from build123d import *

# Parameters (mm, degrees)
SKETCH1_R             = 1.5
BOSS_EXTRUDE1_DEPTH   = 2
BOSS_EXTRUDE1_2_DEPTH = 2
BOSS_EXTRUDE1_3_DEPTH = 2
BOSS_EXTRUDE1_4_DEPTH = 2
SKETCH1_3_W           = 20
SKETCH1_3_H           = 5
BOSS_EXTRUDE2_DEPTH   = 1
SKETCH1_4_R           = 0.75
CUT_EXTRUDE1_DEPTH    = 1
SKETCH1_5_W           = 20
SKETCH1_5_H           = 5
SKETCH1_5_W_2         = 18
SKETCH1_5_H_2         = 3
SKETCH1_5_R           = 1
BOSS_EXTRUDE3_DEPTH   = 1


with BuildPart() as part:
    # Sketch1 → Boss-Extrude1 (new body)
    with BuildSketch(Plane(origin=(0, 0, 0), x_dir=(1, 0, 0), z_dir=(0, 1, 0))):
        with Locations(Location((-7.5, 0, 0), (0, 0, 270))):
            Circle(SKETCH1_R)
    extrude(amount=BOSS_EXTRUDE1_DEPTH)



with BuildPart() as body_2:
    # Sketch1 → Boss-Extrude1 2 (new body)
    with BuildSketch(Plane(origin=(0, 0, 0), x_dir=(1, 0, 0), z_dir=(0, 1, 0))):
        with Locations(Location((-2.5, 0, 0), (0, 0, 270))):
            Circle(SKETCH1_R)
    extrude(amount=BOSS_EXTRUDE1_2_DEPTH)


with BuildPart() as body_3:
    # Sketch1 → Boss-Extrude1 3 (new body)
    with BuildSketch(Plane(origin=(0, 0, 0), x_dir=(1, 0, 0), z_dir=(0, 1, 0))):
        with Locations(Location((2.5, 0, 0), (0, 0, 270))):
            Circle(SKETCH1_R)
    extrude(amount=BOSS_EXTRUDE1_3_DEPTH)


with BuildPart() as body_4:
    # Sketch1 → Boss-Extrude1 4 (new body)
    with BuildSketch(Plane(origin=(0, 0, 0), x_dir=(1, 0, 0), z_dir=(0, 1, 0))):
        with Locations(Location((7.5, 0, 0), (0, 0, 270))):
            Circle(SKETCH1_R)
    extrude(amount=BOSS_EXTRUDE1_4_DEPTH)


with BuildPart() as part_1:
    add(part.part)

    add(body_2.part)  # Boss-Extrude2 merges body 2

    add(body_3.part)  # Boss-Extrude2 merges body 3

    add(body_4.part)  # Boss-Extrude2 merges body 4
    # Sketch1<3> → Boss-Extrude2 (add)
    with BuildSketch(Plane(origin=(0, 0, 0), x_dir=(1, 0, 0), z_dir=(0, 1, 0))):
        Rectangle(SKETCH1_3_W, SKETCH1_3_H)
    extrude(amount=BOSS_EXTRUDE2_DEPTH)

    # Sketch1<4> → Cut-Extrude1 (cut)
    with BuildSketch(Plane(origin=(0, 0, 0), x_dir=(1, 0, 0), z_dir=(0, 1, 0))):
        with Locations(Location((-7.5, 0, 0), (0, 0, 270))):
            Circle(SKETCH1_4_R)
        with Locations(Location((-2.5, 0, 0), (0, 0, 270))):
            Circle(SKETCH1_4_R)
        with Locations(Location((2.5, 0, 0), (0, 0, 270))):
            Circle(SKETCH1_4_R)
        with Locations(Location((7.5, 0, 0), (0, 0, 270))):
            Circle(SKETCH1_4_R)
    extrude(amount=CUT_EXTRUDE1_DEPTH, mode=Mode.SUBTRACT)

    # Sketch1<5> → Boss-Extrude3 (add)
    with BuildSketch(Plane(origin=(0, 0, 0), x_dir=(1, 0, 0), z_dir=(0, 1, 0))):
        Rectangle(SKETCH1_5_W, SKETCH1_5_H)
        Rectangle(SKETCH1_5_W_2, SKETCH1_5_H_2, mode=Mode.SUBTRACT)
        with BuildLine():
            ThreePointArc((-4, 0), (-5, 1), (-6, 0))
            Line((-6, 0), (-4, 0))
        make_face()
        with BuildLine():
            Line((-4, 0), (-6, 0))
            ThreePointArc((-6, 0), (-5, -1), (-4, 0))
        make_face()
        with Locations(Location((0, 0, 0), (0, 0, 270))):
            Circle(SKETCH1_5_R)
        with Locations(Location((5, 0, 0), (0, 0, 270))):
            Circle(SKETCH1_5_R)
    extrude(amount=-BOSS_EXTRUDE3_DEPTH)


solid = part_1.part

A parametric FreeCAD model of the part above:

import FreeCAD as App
import Part
import Sketcher
from FreeCAD import Vector

doc = App.newDocument("Part")
body = doc.addObject("PartDesign::Body", "Body")

sketch1 = body.newObject("Sketcher::SketchObject", "Sketch")
sketch1.AttachmentSupport = (doc.getObject("XZ_Plane"), [""])
sketch1.MapMode = "FlatFace"
sketch1.addGeometry(Part.Circle(Vector(-7.5, 0, 0), Vector(0, 0, 1), 1.5), False)
sketch1.addConstraint(Sketcher.Constraint("PointOnObject", 0, 3, -1))
sketch1.addConstraint(Sketcher.Constraint("Diameter", 0, 3.0))
sketch1.addConstraint(Sketcher.Constraint("DistanceX", 0, 3, -1, 1, 7.5))
pad1 = body.newObject("PartDesign::Pad", "Pad")
pad1.Profile = sketch1
pad1.Length = 2
pad1.Reversed = True
body2 = doc.addObject("PartDesign::Body", "Body001")

sketch2 = body2.newObject("Sketcher::SketchObject", "Sketch001")
sketch2.AttachmentSupport = (doc.getObject("XZ_Plane001"), [""])
sketch2.MapMode = "FlatFace"
sketch2.addGeometry(Part.Circle(Vector(-2.5, 0, 0), Vector(0, 0, 1), 1.5), False)
sketch2.addConstraint(Sketcher.Constraint("PointOnObject", 0, 3, -1))
sketch2.addConstraint(Sketcher.Constraint("Diameter", 0, 3.0))
sketch2.addConstraint(Sketcher.Constraint("DistanceX", 0, 3, -1, 1, 2.5))
pad2 = body2.newObject("PartDesign::Pad", "Pad001")
pad2.Profile = sketch2
pad2.Length = 2
pad2.Reversed = True
body3 = doc.addObject("PartDesign::Body", "Body002")

sketch3 = body3.newObject("Sketcher::SketchObject", "Sketch002")
sketch3.AttachmentSupport = (doc.getObject("XZ_Plane002"), [""])
sketch3.MapMode = "FlatFace"
sketch3.addGeometry(Part.Circle(Vector(2.5, 0, 0), Vector(0, 0, 1), 1.5), False)
sketch3.addConstraint(Sketcher.Constraint("PointOnObject", 0, 3, -1))
sketch3.addConstraint(Sketcher.Constraint("Diameter", 0, 3.0))
sketch3.addConstraint(Sketcher.Constraint("DistanceX", -1, 1, 0, 3, 2.5))
pad3 = body3.newObject("PartDesign::Pad", "Pad002")
pad3.Profile = sketch3
pad3.Length = 2
pad3.Reversed = True
body4 = doc.addObject("PartDesign::Body", "Body003")

sketch4 = body4.newObject("Sketcher::SketchObject", "Sketch003")
sketch4.AttachmentSupport = (doc.getObject("XZ_Plane003"), [""])
sketch4.MapMode = "FlatFace"
sketch4.addGeometry(Part.Circle(Vector(7.5, 0, 0), Vector(0, 0, 1), 1.5), False)
sketch4.addConstraint(Sketcher.Constraint("PointOnObject", 0, 3, -1))
sketch4.addConstraint(Sketcher.Constraint("Diameter", 0, 3.0))
sketch4.addConstraint(Sketcher.Constraint("DistanceX", -1, 1, 0, 3, 7.5))
pad4 = body4.newObject("PartDesign::Pad", "Pad003")
pad4.Profile = sketch4
pad4.Length = 2
pad4.Reversed = True
body.AllowCompound = True
doc.recompute()

boolean = body.newObject("PartDesign::Boolean", "Boolean")
boolean.Type = "Fuse"
boolean.addObjects([body2])
doc.recompute()

boolean2 = body.newObject("PartDesign::Boolean", "Boolean001")
boolean2.Type = "Fuse"
boolean2.addObjects([body3])
doc.recompute()

boolean3 = body.newObject("PartDesign::Boolean", "Boolean002")
boolean3.Type = "Fuse"
boolean3.addObjects([body4])

sketch5 = body.newObject("Sketcher::SketchObject", "Sketch004")
sketch5.AttachmentSupport = (doc.getObject("XZ_Plane"), [""])
sketch5.MapMode = "FlatFace"
sketch5.addGeometry(Part.LineSegment(Vector(-10, -2, 0), Vector(-10, 2, 0)), False)
sketch5.addGeometry(Part.LineSegment(Vector(-10, 2, 0), Vector(10, 2, 0)), False)
sketch5.addGeometry(Part.LineSegment(Vector(10, 2, 0), Vector(10, -2, 0)), False)
sketch5.addGeometry(Part.LineSegment(Vector(10, -2, 0), Vector(-10, -2, 0)), False)
sketch5.addConstraint(Sketcher.Constraint("Coincident", 0, 2, 1, 1))
sketch5.addConstraint(Sketcher.Constraint("Coincident", 1, 2, 2, 1))
sketch5.addConstraint(Sketcher.Constraint("Coincident", 2, 2, 3, 1))
sketch5.addConstraint(Sketcher.Constraint("Coincident", 3, 2, 0, 1))
sketch5.addConstraint(Sketcher.Constraint("Vertical", 0))
sketch5.addConstraint(Sketcher.Constraint("Horizontal", 1))
sketch5.addConstraint(Sketcher.Constraint("Vertical", 2))
sketch5.addConstraint(Sketcher.Constraint("Horizontal", 3))
sketch5.addConstraint(Sketcher.Constraint("Symmetric", 0, 2, 2, 2, -1, 1))
sketch5.addConstraint(Sketcher.Constraint("DistanceX", 1, 1, 1, 2, 20.0))
sketch5.addConstraint(Sketcher.Constraint("DistanceY", 0, 1, 0, 2, 5.0))
pad5 = body.newObject("PartDesign::Pad", "Pad004")
pad5.Profile = sketch5
pad5.Length = 1
pad5.Reversed = True

sketch6 = body.newObject("Sketcher::SketchObject", "Sketch005")
sketch6.AttachmentSupport = (doc.getObject("XZ_Plane"), [""])
sketch6.MapMode = "FlatFace"
sketch6.addGeometry(Part.Circle(Vector(-7.5, 0, 0), Vector(0, 0, 1), 0.8), False)
sketch6.addGeometry(Part.Circle(Vector(-2.5, 0, 0), Vector(0, 0, 1), 0.8), False)
sketch6.addGeometry(Part.Circle(Vector(2.5, 0, 0), Vector(0, 0, 1), 0.8), False)
sketch6.addGeometry(Part.Circle(Vector(7.5, 0, 0), Vector(0, 0, 1), 0.8), False)
sketch6.addConstraint(Sketcher.Constraint("Equal", 0, 1))
sketch6.addConstraint(Sketcher.Constraint("Equal", 1, 2))
sketch6.addConstraint(Sketcher.Constraint("Equal", 2, 3))
sketch6.addConstraint(Sketcher.Constraint("Symmetric", 1, 3, 2, 3, -1, 1))
sketch6.addConstraint(Sketcher.Constraint("Symmetric", 0, 3, 3, 3, -1, 1))
sketch6.addConstraint(Sketcher.Constraint("PointOnObject", 0, 3, -1))
sketch6.addConstraint(Sketcher.Constraint("PointOnObject", 1, 3, -1))
sketch6.addConstraint(Sketcher.Constraint("Diameter", 0, 1.5))
sketch6.addConstraint(Sketcher.Constraint("DistanceX", 0, 3, 1, 3, 5.0))
sketch6.addConstraint(Sketcher.Constraint("DistanceX", 1, 3, 2, 3, 5.0))
pocket1 = body.newObject("PartDesign::Pocket", "Pocket")
pocket1.Profile = sketch6
pocket1.Length = 1

sketch7 = body.newObject("Sketcher::SketchObject", "Sketch006")
sketch7.AttachmentSupport = (doc.getObject("XZ_Plane"), [""])
sketch7.MapMode = "FlatFace"
sketch7.addGeometry(Part.LineSegment(Vector(-10, -2.5, 0), Vector(-10, 2.5, 0)), False)
sketch7.addGeometry(Part.LineSegment(Vector(-10, 2.5, 0), Vector(10, 2.5, 0)), False)
sketch7.addGeometry(Part.LineSegment(Vector(10, 2.5, 0), Vector(10, -2.5, 0)), False)
sketch7.addGeometry(Part.LineSegment(Vector(10, -2.5, 0), Vector(-10, -2.5, 0)), False)
sketch7.addGeometry(Part.LineSegment(Vector(9, 1.5, 0), Vector(-9, 1.5, 0)), False)
sketch7.addGeometry(Part.LineSegment(Vector(-9, 1.5, 0), Vector(-9, -1.5, 0)), False)
sketch7.addGeometry(Part.LineSegment(Vector(-9, -1.5, 0), Vector(9, -1.5, 0)), False)
sketch7.addGeometry(Part.LineSegment(Vector(9, -1.5, 0), Vector(9, 1.5, 0)), False)
sketch7.addGeometry(Part.Circle(Vector(-5, 0, 0), Vector(0, 0, 1), 1), False)
sketch7.addGeometry(Part.Circle(Vector(0, 0, 0), Vector(0, 0, 1), 1), False)
sketch7.addGeometry(Part.Circle(Vector(5, 0, 0), Vector(0, 0, 1), 1), False)
sketch7.addConstraint(Sketcher.Constraint("Coincident", 0, 2, 1, 1))
sketch7.addConstraint(Sketcher.Constraint("Coincident", 1, 2, 2, 1))
sketch7.addConstraint(Sketcher.Constraint("Coincident", 2, 2, 3, 1))
sketch7.addConstraint(Sketcher.Constraint("Coincident", 3, 2, 0, 1))
sketch7.addConstraint(Sketcher.Constraint("Coincident", 4, 2, 5, 1))
sketch7.addConstraint(Sketcher.Constraint("Coincident", 5, 2, 6, 1))
sketch7.addConstraint(Sketcher.Constraint("Coincident", 6, 2, 7, 1))
sketch7.addConstraint(Sketcher.Constraint("Coincident", 7, 2, 4, 1))
sketch7.addConstraint(Sketcher.Constraint("Vertical", 0))
sketch7.addConstraint(Sketcher.Constraint("Horizontal", 1))
sketch7.addConstraint(Sketcher.Constraint("Vertical", 2))
sketch7.addConstraint(Sketcher.Constraint("Horizontal", 3))
sketch7.addConstraint(Sketcher.Constraint("Horizontal", 4))
sketch7.addConstraint(Sketcher.Constraint("Vertical", 5))
sketch7.addConstraint(Sketcher.Constraint("Horizontal", 6))
sketch7.addConstraint(Sketcher.Constraint("Vertical", 7))
sketch7.addConstraint(Sketcher.Constraint("Coincident", 9, 3, -1, 1))
sketch7.addConstraint(Sketcher.Constraint("Equal", 8, 9))
sketch7.addConstraint(Sketcher.Constraint("Equal", 9, 10))
sketch7.addConstraint(Sketcher.Constraint("Symmetric", 8, 3, 10, 3, -1, 1))
sketch7.addConstraint(Sketcher.Constraint("Symmetric", 0, 2, 2, 2, -1, 1))
sketch7.addConstraint(Sketcher.Constraint("Symmetric", 4, 2, 6, 2, -1, 1))
sketch7.addConstraint(Sketcher.Constraint("PointOnObject", 8, 3, -1))
sketch7.addConstraint(Sketcher.Constraint("Diameter", 8, 2.0))
sketch7.addConstraint(Sketcher.Constraint("DistanceX", 1, 1, 1, 2, 20.0))
sketch7.addConstraint(Sketcher.Constraint("DistanceX", 4, 2, 4, 1, 18.0))
sketch7.addConstraint(Sketcher.Constraint("DistanceY", 0, 1, 0, 2, 5.0))
sketch7.addConstraint(Sketcher.Constraint("DistanceY", 5, 2, 5, 1, 3.0))
sketch7.addConstraint(Sketcher.Constraint("DistanceX", 8, 3, -1, 1, 5.0))
pad6 = body.newObject("PartDesign::Pad", "Pad005")
pad6.Profile = sketch7
pad6.Length = 1

doc.recompute()
